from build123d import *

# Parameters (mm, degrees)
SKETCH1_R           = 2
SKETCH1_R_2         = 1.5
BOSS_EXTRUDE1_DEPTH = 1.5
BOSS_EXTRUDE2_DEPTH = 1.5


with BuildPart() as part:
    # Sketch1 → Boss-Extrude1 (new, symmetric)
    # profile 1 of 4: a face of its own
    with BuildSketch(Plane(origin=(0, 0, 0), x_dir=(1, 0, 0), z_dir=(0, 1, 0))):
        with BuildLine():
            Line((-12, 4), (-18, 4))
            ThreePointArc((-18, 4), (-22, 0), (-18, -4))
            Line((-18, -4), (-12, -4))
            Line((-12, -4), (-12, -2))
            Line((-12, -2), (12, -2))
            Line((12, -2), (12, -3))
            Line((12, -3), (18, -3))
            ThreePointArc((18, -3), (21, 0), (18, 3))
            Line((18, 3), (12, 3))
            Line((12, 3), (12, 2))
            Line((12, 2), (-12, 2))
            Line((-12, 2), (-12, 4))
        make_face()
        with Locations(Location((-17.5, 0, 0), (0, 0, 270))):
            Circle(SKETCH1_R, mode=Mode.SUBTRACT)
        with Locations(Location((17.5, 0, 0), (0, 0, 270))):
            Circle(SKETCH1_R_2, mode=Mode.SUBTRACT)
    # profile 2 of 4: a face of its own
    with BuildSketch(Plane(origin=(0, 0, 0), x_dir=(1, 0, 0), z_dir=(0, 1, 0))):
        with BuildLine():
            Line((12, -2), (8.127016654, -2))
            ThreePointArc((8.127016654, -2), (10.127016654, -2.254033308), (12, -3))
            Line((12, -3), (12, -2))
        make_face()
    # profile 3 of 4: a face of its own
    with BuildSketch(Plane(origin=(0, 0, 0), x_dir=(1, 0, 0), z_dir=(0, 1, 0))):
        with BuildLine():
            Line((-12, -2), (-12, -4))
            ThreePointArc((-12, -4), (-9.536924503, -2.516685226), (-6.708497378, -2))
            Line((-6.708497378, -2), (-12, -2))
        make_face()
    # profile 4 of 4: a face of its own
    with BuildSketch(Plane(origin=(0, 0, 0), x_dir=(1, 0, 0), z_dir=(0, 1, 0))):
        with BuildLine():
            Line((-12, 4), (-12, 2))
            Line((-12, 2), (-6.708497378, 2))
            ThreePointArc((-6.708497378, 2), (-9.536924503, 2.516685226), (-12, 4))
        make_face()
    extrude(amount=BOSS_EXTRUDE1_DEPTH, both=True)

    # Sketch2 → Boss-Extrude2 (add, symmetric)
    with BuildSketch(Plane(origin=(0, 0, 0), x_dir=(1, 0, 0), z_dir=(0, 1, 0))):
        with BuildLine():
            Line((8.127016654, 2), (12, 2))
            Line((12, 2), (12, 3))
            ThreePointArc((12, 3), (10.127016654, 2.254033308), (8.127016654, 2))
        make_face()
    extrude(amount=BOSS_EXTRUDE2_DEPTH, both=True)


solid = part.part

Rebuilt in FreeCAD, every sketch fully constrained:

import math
import FreeCAD as App
import Part
import Sketcher
from FreeCAD import Vector
Q = App.Units.Quantity

doc = App.newDocument("Part")
body = doc.addObject("PartDesign::Body", "Body")

sketch1 = body.newObject("Sketcher::SketchObject", "Sketch")
sketch1.AttachmentSupport = (doc.getObject("XZ_Plane"), [""])
sketch1.MapMode = "FlatFace"
sketch1.addGeometry([
    Part.LineSegment(Vector(-12, -4, 0), Vector(-18, -4, 0)),
    Part.ArcOfCircle(Part.Circle(Vector(-18, 0, 0), Vector(0, 0, 1), 4), math.radians(90), math.radians(270)),
    Part.LineSegment(Vector(-18, 4, 0), Vector(-12, 4, 0)),
    Part.ArcOfCircle(Part.Circle(Vector(-6.7, 10, 0), Vector(0, 0, 1), 8), math.radians(-131), math.radians(-90)),
    Part.LineSegment(Vector(-6.7, 2, 0), Vector(8.1, 2, 0)),
    Part.ArcOfCircle(Part.Circle(Vector(8.1, 10, 0), Vector(0, 0, 1), 8), math.radians(-90), math.radians(-61)),
    Part.LineSegment(Vector(12, 3, 0), Vector(18, 3, 0)),
    Part.ArcOfCircle(Part.Circle(Vector(18, 0, 0), Vector(0, 0, 1), 3), math.radians(-90), math.radians(90)),
    Part.LineSegment(Vector(18, -3, 0), Vector(12, -3, 0)),
    Part.LineSegment(Vector(12, -3, 0), Vector(12, -2, 0)),
    Part.LineSegment(Vector(12, -2, 0), Vector(-6.7, -2, 0)),
    Part.ArcOfCircle(Part.Circle(Vector(-6.7, -10, 0), Vector(0, 0, 1), 8), math.radians(90), math.radians(131)),
    Part.Circle(Vector(-17.5, 0, 0), Vector(0, 0, 1), 2),
    Part.Circle(Vector(17.5, 0, 0), Vector(0, 0, 1), 1.5),
], False)
sketch1.addConstraint([
    Sketcher.Constraint("Tangent", 0, 2, 1, 2),
    Sketcher.Constraint("Tangent", 1, 1, 2, 1),
    Sketcher.Constraint("Coincident", 2, 2, 3, 1),
    Sketcher.Constraint("Tangent", 3, 2, 4, 1),
    Sketcher.Constraint("Tangent", 4, 2, 5, 1),
    Sketcher.Constraint("Coincident", 5, 2, 6, 1),
    Sketcher.Constraint("Tangent", 6, 2, 7, 2),
    Sketcher.Constraint("Tangent", 7, 1, 8, 1),
    Sketcher.Constraint("Coincident", 8, 2, 9, 1),
    Sketcher.Constraint("Coincident", 9, 2, 10, 1),
    Sketcher.Constraint("Tangent", 10, 2, 11, 1),
    Sketcher.Constraint("Coincident", 11, 2, 0, 1),
    Sketcher.Constraint("Horizontal", 0),
    Sketcher.Constraint("Horizontal", 2),
    Sketcher.Constraint("Horizontal", 4),
    Sketcher.Constraint("Horizontal", 6),
    Sketcher.Constraint("Horizontal", 8),
    Sketcher.Constraint("Vertical", 9),
    Sketcher.Constraint("Horizontal", 10),
    Sketcher.Constraint("Equal", 3, 5),
    Sketcher.Constraint("Equal", 5, 11),
    Sketcher.Constraint("Symmetric", 1, 3, 7, 3, -1, 1),
    Sketcher.Constraint("Symmetric", 12, 3, 13, 3, -1, 1),
    Sketcher.Constraint("Symmetric", 3, 3, 11, 3, -1),
    Sketcher.Constraint("Symmetric", 5, 2, 8, 2, -1),
    Sketcher.Constraint("PointOnObject", 12, 3, -1),
    Sketcher.Constraint("Equal", 2, 6),
    Sketcher.Constraint("Diameter", 12, Q("4 mm")),
    Sketcher.Constraint("Diameter", 13, Q("3 mm")),
    Sketcher.Constraint("Radius", 1, Q("4 mm")),
    Sketcher.Constraint("Radius", 3, Q("8 mm")),
    Sketcher.Constraint("Radius", 7, Q("3 mm")),
    Sketcher.Constraint("DistanceX", 0, 2, 0, 1, Q("6 mm")),
    Sketcher.Constraint("DistanceY", 9, 1, 9, 2, Q("1 mm")),
    Sketcher.Constraint("DistanceX", 1, 3, -1, 1, Q("18 mm")),
    Sketcher.Constraint("DistanceX", 12, 3, 13, 3, Q("35 mm")),
])
pad1 = body.newObject("PartDesign::Pad", "Pad")
pad1.Profile = sketch1
pad1.Length = 3
pad1.Midplane = True

sketch2 = body.newObject("Sketcher::SketchObject", "Sketch001")
sketch2.AttachmentSupport = (doc.getObject("XZ_Plane"), [""])
sketch2.MapMode = "FlatFace"
sketch2.addGeometry([
    Part.LineSegment(Vector(8.1, -2, 0), Vector(12, -2, 0)),
    Part.LineSegment(Vector(12, -2, 0), Vector(12, -3, 0)),
    Part.ArcOfCircle(Part.Circle(Vector(8.1, -10, 0), Vector(0, 0, 1), 8), math.radians(61), math.radians(90)),
], False)
sketch2.addConstraint([
    Sketcher.Constraint("Coincident", 0, 2, 1, 1),
    Sketcher.Constraint("Coincident", 1, 2, 2, 1),
    Sketcher.Constraint("Tangent", 2, 2, 0, 1),
    Sketcher.Constraint("Horizontal", 0),
    Sketcher.Constraint("Vertical", 1),
    Sketcher.Constraint("Radius", 2, Q("8 mm")),
    Sketcher.Constraint("DistanceY", 1, 2, 1, 1, Q("1 mm")),
    Sketcher.Constraint("DistanceY", 2, 3, -1, 1, Q("10 mm")),
    Sketcher.Constraint("DistanceX", -1, 1, 0, 2, Q("12 mm")),
])
pad2 = body.newObject("PartDesign::Pad", "Pad001")
pad2.Profile = sketch2
pad2.Length = 3
pad2.Midplane = True

doc.recompute()
